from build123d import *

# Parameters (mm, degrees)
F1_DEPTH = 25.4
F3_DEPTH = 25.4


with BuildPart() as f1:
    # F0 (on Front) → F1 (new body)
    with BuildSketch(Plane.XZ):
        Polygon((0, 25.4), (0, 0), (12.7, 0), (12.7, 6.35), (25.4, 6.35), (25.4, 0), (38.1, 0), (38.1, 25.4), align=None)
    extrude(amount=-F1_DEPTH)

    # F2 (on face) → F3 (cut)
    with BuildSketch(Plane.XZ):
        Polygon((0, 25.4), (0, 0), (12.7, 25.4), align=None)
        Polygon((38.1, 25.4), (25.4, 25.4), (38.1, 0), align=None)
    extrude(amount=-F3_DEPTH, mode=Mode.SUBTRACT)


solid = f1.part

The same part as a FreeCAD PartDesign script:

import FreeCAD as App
import Part
import Sketcher

V = App.Vector
Q = App.Units.Quantity


def add_polygon(sketch, points):
    """Adds a closed chain of lines whose ends are joined by coincident constraints."""
    first, n = sketch.GeometryCount, len(points)
    for a, b in zip(points, points[1:] + points[:1]):
        sketch.addGeometry(Part.LineSegment(App.Vector(*a, 0), App.Vector(*b, 0)), False)
    for i in range(n):
        sketch.addConstraint(Sketcher.Constraint("Coincident", first + i, 2, first + (i + 1) % n, 1))

doc = App.newDocument("Part")
body = doc.addObject("PartDesign::Body", "Body")

sketch1 = body.newObject("Sketcher::SketchObject", "Sketch")
sketch1.AttachmentSupport = (doc.getObject("XZ_Plane"), [""])
sketch1.MapMode = "FlatFace"
add_polygon(sketch1, [(0, 25), (0, 0), (13, 0), (13, 6), (25, 6), (25, 0), (38, 0), (38, 25)])
sketch1.addConstraint([
    Sketcher.Constraint("Vertical", 0),
    Sketcher.Constraint("Horizontal", 1),
    Sketcher.Constraint("Vertical", 2),
    Sketcher.Constraint("Horizontal", 3),
    Sketcher.Constraint("Vertical", 4),
    Sketcher.Constraint("Horizontal", 5),
    Sketcher.Constraint("Vertical", 6),
    Sketcher.Constraint("Horizontal", 7),
    Sketcher.Constraint("Coincident", 0, 2, -1, 1),
    Sketcher.Constraint("PointOnObject", 4, 2, -1),
    Sketcher.Constraint("Equal", 1, 3),
    Sketcher.Constraint("Equal", 3, 5),
    Sketcher.Constraint("DistanceY", 0, 2, 0, 1, Q("1 in")),
    Sketcher.Constraint("DistanceX", 1, 1, 1, 2, Q("0.5 in")),
    Sketcher.Constraint("DistanceY", 2, 1, 2, 2, Q("0.25 in")),
])
pad1 = body.newObject("PartDesign::Pad", "Pad")
pad1.Profile = sketch1
pad1.Length = Q("1 in")
pad1.Reversed = True

sketch2 = body.newObject("Sketcher::SketchObject", "Sketch001")
sketch2.AttachmentSupport = (doc.getObject("XZ_Plane"), [""])
sketch2.MapMode = "FlatFace"
add_polygon(sketch2, [(0, 25), (0, 0), (13, 25)])
add_polygon(sketch2, [(38, 25), (25, 25), (38, 0)])
sketch2.addConstraint([
    Sketcher.Constraint("Vertical", 0),
    Sketcher.Constraint("Horizontal", 2),
    Sketcher.Constraint("Horizontal", 3),
    Sketcher.Constraint("Vertical", 5),
    Sketcher.Constraint("Coincident", 0, 2, -1, 1),
    Sketcher.Constraint("PointOnObject", 4, 2, -1),
    Sketcher.Constraint("Horizontal", 2, 2, 3, 2),
    Sketcher.Constraint("Equal", 2, 3),
    Sketcher.Constraint("DistanceY", 0, 2, 0, 1, Q("1 in")),
    Sketcher.Constraint("DistanceX", 2, 2, 2, 1, Q("0.5 in")),
    Sketcher.Constraint("DistanceX", -1, 1, 3, 2, Q("1 in")),
])
pocket1 = body.newObject("PartDesign::Pocket", "Pocket")
pocket1.Profile = sketch2
pocket1.Length = Q("1 in")

doc.recompute()
